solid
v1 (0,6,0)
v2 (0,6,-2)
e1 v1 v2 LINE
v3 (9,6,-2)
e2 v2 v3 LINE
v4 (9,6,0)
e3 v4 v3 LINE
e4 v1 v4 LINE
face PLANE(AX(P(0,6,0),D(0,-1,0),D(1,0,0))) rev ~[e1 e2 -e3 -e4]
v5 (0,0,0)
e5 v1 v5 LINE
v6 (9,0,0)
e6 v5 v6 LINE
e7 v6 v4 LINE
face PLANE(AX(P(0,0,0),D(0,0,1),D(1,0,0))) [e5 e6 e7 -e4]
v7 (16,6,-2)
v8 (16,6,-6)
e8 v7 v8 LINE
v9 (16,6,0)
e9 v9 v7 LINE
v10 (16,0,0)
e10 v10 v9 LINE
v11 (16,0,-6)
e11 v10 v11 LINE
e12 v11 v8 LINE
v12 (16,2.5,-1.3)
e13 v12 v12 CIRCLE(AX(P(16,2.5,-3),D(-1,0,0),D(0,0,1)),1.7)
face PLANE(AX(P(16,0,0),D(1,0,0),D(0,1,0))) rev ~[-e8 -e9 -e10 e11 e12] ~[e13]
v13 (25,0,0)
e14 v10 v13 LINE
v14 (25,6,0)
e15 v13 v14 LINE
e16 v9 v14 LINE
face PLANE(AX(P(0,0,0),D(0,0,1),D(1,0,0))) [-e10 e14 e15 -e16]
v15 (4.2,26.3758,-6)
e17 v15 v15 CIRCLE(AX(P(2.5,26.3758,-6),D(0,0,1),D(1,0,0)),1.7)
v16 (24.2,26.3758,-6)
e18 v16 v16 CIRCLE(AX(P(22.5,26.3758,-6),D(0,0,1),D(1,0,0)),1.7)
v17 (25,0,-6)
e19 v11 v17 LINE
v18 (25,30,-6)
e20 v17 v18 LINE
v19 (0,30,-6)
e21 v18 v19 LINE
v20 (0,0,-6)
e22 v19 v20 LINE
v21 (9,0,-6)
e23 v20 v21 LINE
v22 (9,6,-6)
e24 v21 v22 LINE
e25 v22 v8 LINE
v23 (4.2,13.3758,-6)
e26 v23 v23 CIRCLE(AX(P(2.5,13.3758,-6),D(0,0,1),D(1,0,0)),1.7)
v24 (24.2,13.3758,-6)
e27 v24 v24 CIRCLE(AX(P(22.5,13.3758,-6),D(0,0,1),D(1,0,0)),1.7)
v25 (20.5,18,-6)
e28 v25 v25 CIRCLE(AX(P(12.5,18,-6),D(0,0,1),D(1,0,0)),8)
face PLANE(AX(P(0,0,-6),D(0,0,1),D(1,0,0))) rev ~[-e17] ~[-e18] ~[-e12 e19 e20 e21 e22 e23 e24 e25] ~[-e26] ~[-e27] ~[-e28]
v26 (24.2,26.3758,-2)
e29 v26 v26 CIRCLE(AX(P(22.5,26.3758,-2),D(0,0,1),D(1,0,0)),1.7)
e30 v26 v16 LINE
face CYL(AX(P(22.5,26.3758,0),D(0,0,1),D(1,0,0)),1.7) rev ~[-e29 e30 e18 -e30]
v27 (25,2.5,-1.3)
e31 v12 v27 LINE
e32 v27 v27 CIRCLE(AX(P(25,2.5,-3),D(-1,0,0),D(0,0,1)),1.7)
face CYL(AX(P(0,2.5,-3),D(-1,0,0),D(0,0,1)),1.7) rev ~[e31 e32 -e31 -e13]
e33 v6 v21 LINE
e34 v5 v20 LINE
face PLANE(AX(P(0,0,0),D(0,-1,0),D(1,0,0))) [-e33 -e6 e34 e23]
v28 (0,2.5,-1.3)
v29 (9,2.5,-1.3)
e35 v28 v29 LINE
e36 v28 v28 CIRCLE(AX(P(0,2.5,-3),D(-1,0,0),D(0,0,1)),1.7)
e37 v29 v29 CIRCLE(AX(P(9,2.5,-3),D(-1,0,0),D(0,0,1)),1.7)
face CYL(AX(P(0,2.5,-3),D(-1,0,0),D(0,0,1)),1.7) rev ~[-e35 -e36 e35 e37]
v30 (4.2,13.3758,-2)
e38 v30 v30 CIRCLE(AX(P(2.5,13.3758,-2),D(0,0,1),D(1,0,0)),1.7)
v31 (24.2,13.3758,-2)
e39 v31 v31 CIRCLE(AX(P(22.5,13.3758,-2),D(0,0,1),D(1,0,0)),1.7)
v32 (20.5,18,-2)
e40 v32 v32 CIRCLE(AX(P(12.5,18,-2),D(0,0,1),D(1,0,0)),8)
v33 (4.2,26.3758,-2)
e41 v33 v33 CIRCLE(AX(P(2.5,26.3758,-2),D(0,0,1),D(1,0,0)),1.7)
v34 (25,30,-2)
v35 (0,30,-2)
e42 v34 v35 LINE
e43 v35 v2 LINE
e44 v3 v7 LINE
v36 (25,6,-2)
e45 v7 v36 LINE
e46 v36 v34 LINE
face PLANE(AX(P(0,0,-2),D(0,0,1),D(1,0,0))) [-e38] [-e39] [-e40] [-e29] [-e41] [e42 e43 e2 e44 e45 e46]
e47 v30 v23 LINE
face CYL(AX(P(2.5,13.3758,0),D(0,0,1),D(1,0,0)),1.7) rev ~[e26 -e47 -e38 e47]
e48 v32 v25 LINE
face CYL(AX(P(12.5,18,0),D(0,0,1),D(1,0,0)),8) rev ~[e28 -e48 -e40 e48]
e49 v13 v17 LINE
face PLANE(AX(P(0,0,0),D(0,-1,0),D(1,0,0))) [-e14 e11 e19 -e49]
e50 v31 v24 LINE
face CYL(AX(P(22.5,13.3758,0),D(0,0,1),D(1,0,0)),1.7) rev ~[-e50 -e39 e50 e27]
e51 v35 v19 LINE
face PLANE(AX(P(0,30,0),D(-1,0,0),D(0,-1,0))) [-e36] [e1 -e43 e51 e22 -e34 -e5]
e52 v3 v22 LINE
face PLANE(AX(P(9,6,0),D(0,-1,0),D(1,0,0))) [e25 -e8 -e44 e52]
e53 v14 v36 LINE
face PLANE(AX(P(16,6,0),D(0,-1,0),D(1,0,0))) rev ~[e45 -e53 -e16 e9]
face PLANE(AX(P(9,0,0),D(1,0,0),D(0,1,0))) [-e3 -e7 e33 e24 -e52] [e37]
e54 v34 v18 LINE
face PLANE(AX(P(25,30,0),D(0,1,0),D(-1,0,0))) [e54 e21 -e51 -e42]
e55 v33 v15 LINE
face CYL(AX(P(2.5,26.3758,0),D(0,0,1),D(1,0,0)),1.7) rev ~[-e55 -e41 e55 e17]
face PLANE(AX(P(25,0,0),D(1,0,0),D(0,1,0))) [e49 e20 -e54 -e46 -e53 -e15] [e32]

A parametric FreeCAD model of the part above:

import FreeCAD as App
import Part
import Sketcher

V = App.Vector


def add_polygon(sketch, points):
    """Adds a closed chain of lines whose ends are joined by coincident constraints."""
    first, n = sketch.GeometryCount, len(points)
    for a, b in zip(points, points[1:] + points[:1]):
        sketch.addGeometry(Part.LineSegment(App.Vector(*a, 0), App.Vector(*b, 0)), False)
    for i in range(n):
        sketch.addConstraint(Sketcher.Constraint("Coincident", first + i, 2, first + (i + 1) % n, 1))

doc = App.newDocument("Part")
body = doc.addObject("PartDesign::Body", "Body")

sketch1 = body.newObject("Sketcher::SketchObject", "Sketch")
sketch1.AttachmentSupport = (doc.getObject("XY_Plane"), [""])
sketch1.MapMode = "FlatFace"
add_polygon(sketch1, [(0, 30), (0, 0), (25, 0), (25, 30)])
sketch1.addConstraint([
    Sketcher.Constraint("Vertical", 0),
    Sketcher.Constraint("Horizontal", 1),
    Sketcher.Constraint("Vertical", 2),
    Sketcher.Constraint("Horizontal", 3),
    Sketcher.Constraint("Coincident", 0, 2, -1, 1),
    Sketcher.Constraint("DistanceX", 1, 1, 1, 2, 25.0),
    Sketcher.Constraint("DistanceY", 0, 2, 0, 1, 30.0),
])
pad1 = body.newObject("PartDesign::Pad", "Pad")
pad1.Profile = sketch1
pad1.Length = 6
pad1.Reversed = True

sketch2 = body.newObject("Sketcher::SketchObject", "Sketch001")
sketch2.AttachmentSupport = (doc.getObject("XY_Plane"), [""])
sketch2.MapMode = "FlatFace"
sketch2.addGeometry(Part.Circle(V(12.5, 18, 0), V(0, 0, 1), 8), False)
sketch2.addConstraint([
    Sketcher.Constraint("Diameter", 0, 16.0),
    Sketcher.Constraint("DistanceY", -1, 1, 0, 3, 18.0),
    Sketcher.Constraint("DistanceX", -1, 1, 0, 3, 12.5),
])
pocket1 = body.newObject("PartDesign::Pocket", "Pocket")
pocket1.Profile = sketch2
pocket1.Length = 10

sketch3 = body.newObject("Sketcher::SketchObject", "Sketch002")
sketch3.AttachmentSupport = (doc.getObject("XY_Plane"), [""])
sketch3.MapMode = "FlatFace"
sketch3.addGeometry([
    Part.Circle(V(2.5, 26.3758, 0), V(0, 0, 1), 1.7),
    Part.Circle(V(22.5, 26.3758, 0), V(0, 0, 1), 1.7),
    Part.Circle(V(22.5, 13.3758, 0), V(0, 0, 1), 1.7),
    Part.Circle(V(2.5, 13.3758, 0), V(0, 0, 1), 1.7),
], False)
sketch3.addConstraint([
    Sketcher.Constraint("Equal", 0, 1),
    Sketcher.Constraint("Equal", 1, 2),
    Sketcher.Constraint("Equal", 2, 3),
    Sketcher.Constraint("Horizontal", 0, 3, 1, 3),
    Sketcher.Constraint("Horizontal", 2, 3, 3, 3),
    Sketcher.Constraint("Vertical", 1, 3, 2, 3),
    Sketcher.Constraint("Vertical", 0, 3, 3, 3),
    Sketcher.Constraint("Diameter", 0, 3.4),
    Sketcher.Constraint("DistanceX", 0, 3, 1, 3, 20.0),
    Sketcher.Constraint("DistanceY", 2, 3, 1, 3, 13.0),
    Sketcher.Constraint("DistanceX", -1, 1, 0, 3, 2.5),
    Sketcher.Constraint("DistanceY", -1, 1, 0, 3, 26.3758),
])
pocket2 = body.newObject("PartDesign::Pocket", "Pocket001")
pocket2.Profile = sketch3
pocket2.Length = 10

sketch4 = body.newObject("Sketcher::SketchObject", "Sketch003")
sketch4.AttachmentSupport = (doc.getObject("XY_Plane"), [""])
sketch4.MapMode = "FlatFace"
add_polygon(sketch4, [(9, 0), (16, 0), (16, 6), (9, 6)])
sketch4.addConstraint([
    Sketcher.Constraint("Horizontal", 0),
    Sketcher.Constraint("Vertical", 1),
    Sketcher.Constraint("Horizontal", 2),
    Sketcher.Constraint("Vertical", 3),
    Sketcher.Constraint("PointOnObject", 0, 2, -1),
    Sketcher.Constraint("DistanceY", 1, 1, 1, 2, 6.0),
    Sketcher.Constraint("DistanceX", -1, 1, 2, 2, 9.0),
    Sketcher.Constraint("DistanceX", 0, 1, 0, 2, 7.0),
])
pocket3 = body.newObject("PartDesign::Pocket", "Pocket002")
pocket3.Profile = sketch4
pocket3.Length = 10

sketch5 = body.newObject("Sketcher::SketchObject", "Sketch004")
sketch5.AttachmentSupport = (doc.getObject("YZ_Plane"), [""])
sketch5.MapMode = "FlatFace"
sketch5.addGeometry(Part.Circle(V(2.5, -3, 0), V(0, 0, 1), 1.7), False)
sketch5.addConstraint([
    Sketcher.Constraint("Diameter", 0, 3.4),
    Sketcher.Constraint("DistanceY", 0, 3, -1, 1, 3.0),
    Sketcher.Constraint("DistanceX", -1, 1, 0, 3, 2.5),
])
pocket4 = body.newObject("PartDesign::Pocket", "Pocket003")
pocket4.Profile = sketch5
pocket4.Length = 40
pocket4.Reversed = True

sketch6 = body.newObject("Sketcher::SketchObject", "Sketch005")
sketch6.AttachmentSupport = (doc.getObject("XY_Plane"), [""])
sketch6.MapMode = "FlatFace"
add_polygon(sketch6, [(0, 6), (25, 6), (25, 30), (0, 30)])
sketch6.addGeometry(Part.Circle(V(2.5, 13.3758, 0), V(0, 0, 1), 1.7), False)
sketch6.addGeometry(Part.Circle(V(22.5, 13.3758, 0), V(0, 0, 1), 1.7), False)
sketch6.addGeometry(Part.Circle(V(2.5, 26.3758, 0), V(0, 0, 1), 1.7), False)
sketch6.addGeometry(Part.Circle(V(12.5, 18, 0), V(0, 0, 1), 8), False)
sketch6.addGeometry(Part.Circle(V(22.5, 26.3758, 0), V(0, 0, 1), 1.7), False)
sketch6.addConstraint([
    Sketcher.Constraint("Horizontal", 0),
    Sketcher.Constraint("Vertical", 1),
    Sketcher.Constraint("Horizontal", 2),
    Sketcher.Constraint("Vertical", 3),
    Sketcher.Constraint("Equal", 4, 5),
    Sketcher.Constraint("Equal", 5, 6),
    Sketcher.Constraint("Equal", 6, 8),
    Sketcher.Constraint("PointOnObject", 2, 2, -2),
    Sketcher.Constraint("Horizontal", 4, 3, 5, 3),
    Sketcher.Constraint("Horizontal", 6, 3, 8, 3),
    Sketcher.Constraint("Vertical", 4, 3, 6, 3),
    Sketcher.Constraint("Vertical", 5, 3, 8, 3),
    Sketcher.Constraint("Diameter", 7, 16.0),
    Sketcher.Constraint("Diameter", 4, 3.4),
    Sketcher.Constraint("DistanceX", 0, 1, 0, 2, 25.0),
    Sketcher.Constraint("DistanceY", 1, 1, 1, 2, 24.0),
    Sketcher.Constraint("DistanceY", -1, 1, 7, 3, 18.0),
    Sketcher.Constraint("DistanceY", -1, 1, 0, 2, 6.0),
    Sketcher.Constraint("DistanceX", 4, 3, 5, 3, 20.0),
    Sketcher.Constraint("DistanceY", 4, 3, 6, 3, 13.0),
    Sketcher.Constraint("DistanceX", 4, 3, 7, 3, 10.0),
    Sketcher.Constraint("DistanceX", -1, 1, 4, 3, 2.5),
    Sketcher.Constraint("DistanceY", -1, 1, 4, 3, 13.3758),
])
pocket5 = body.newObject("PartDesign::Pocket", "Pocket004")
pocket5.Profile = sketch6
pocket5.Length = 2

doc.recompute()
